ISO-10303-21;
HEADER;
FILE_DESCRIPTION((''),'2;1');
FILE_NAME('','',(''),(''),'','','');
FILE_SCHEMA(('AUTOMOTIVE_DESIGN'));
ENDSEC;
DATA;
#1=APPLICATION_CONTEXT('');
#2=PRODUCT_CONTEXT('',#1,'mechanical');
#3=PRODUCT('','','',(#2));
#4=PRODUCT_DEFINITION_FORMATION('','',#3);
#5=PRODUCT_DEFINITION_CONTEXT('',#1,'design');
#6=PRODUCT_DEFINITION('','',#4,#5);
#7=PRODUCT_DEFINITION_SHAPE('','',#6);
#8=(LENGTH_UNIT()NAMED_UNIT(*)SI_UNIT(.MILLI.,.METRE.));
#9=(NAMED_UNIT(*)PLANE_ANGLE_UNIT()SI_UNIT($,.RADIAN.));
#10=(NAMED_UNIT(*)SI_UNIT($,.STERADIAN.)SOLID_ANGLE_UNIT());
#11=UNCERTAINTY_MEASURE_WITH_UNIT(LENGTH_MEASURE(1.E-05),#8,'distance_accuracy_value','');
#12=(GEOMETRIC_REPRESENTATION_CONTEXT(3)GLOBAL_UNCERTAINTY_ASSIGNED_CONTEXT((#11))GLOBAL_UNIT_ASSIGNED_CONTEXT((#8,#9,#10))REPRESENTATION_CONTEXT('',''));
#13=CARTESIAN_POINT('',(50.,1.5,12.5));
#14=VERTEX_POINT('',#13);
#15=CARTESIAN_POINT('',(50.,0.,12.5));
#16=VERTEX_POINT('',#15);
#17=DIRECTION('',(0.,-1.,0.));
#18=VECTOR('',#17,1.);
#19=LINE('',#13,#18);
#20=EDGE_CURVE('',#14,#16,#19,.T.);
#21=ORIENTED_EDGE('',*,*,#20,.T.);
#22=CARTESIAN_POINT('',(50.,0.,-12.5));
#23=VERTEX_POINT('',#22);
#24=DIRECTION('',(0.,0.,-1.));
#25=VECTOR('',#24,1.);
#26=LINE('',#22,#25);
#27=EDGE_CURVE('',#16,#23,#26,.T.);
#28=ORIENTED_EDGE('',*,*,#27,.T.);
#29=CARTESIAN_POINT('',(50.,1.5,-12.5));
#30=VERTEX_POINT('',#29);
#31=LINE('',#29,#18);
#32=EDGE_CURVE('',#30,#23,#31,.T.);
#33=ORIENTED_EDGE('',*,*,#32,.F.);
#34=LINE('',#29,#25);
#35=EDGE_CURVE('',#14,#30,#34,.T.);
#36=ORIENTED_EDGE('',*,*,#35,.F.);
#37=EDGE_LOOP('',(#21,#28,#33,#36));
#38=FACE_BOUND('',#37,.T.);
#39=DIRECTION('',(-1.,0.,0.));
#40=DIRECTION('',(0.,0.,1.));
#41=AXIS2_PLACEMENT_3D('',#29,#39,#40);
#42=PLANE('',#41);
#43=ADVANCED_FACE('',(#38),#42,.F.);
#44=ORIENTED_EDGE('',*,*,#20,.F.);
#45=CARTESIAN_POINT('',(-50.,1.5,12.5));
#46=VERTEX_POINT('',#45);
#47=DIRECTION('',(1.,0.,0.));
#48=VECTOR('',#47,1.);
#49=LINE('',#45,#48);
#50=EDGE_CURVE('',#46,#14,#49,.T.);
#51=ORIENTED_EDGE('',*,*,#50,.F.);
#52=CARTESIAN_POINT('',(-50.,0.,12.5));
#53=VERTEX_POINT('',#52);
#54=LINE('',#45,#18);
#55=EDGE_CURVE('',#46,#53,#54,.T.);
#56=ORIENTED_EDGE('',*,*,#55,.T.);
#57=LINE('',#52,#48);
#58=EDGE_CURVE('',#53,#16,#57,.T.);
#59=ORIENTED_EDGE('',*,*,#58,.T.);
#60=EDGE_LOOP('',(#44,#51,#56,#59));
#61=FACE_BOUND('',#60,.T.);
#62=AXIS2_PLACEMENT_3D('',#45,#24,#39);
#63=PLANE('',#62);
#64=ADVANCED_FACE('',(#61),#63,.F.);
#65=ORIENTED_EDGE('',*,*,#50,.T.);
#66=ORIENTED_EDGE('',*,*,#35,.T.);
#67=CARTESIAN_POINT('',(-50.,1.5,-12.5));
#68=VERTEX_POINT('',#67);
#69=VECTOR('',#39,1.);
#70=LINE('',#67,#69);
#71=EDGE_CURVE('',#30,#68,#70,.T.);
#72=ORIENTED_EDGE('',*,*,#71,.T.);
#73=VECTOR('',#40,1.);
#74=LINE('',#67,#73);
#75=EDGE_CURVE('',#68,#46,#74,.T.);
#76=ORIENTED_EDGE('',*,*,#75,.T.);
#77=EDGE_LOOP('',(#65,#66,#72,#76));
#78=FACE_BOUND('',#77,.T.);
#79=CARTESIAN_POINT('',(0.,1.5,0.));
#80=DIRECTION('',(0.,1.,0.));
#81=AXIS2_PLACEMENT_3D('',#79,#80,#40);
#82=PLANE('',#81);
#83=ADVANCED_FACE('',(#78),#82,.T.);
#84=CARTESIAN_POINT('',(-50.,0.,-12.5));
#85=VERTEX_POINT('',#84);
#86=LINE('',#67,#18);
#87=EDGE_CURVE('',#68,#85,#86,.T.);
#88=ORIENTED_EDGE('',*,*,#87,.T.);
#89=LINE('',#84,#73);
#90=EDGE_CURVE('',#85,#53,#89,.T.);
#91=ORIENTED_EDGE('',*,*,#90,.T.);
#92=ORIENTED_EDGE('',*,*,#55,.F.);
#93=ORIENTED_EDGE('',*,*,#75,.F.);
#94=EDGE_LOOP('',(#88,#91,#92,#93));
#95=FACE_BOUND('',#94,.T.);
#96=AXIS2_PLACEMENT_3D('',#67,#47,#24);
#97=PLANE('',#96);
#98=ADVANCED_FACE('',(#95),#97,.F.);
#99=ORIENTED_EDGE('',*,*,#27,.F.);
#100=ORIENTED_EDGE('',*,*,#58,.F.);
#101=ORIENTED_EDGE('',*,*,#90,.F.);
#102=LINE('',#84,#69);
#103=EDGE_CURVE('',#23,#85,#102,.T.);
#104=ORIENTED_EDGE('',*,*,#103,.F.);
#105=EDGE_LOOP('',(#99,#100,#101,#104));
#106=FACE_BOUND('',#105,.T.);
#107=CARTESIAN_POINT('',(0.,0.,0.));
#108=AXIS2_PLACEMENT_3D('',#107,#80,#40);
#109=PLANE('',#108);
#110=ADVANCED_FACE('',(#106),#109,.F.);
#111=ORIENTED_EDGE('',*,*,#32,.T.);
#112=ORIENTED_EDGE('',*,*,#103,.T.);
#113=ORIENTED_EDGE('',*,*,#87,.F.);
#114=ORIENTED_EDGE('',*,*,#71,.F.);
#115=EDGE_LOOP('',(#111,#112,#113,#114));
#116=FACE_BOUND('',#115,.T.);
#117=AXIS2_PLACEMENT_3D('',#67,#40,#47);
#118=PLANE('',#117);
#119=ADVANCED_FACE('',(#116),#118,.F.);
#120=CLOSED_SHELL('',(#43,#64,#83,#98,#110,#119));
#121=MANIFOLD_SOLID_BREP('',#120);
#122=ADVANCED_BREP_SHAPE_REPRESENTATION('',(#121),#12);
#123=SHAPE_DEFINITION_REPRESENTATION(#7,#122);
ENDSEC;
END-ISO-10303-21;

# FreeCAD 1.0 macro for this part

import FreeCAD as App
import Part
import Sketcher
from FreeCAD import Vector

doc = App.newDocument("Part")
body = doc.addObject("PartDesign::Body", "Body")

# Sketch on XZ plane
sketch1 = body.newObject("Sketcher::SketchObject", "Sketch")
sketch1.AttachmentSupport = (doc.getObject("XZ_Plane"), [""])
sketch1.MapMode = "FlatFace"
sketch1.addGeometry([
    Part.LineSegment(Vector(-50, -12, 0), Vector(-50, 12, 0)),
    Part.LineSegment(Vector(-50, 12, 0), Vector(50, 12, 0)),
    Part.LineSegment(Vector(50, 12, 0), Vector(50, -12, 0)),
    Part.LineSegment(Vector(50, -12, 0), Vector(-50, -12, 0)),
], False)
sketch1.addConstraint([
    Sketcher.Constraint("Coincident", 0, 2, 1, 1),
    Sketcher.Constraint("Coincident", 1, 2, 2, 1),
    Sketcher.Constraint("Coincident", 2, 2, 3, 1),
    Sketcher.Constraint("Coincident", 3, 2, 0, 1),
    Sketcher.Constraint("Vertical", 0),
    Sketcher.Constraint("Horizontal", 1),
    Sketcher.Constraint("Vertical", 2),
    Sketcher.Constraint("Horizontal", 3),
    Sketcher.Constraint("Symmetric", 0, 2, 2, 2, -1, 1),
    Sketcher.Constraint("DistanceX", 1, 1, 1, 2, 100.0),
    Sketcher.Constraint("DistanceY", 0, 1, 0, 2, 25.0),
])
pad1 = body.newObject("PartDesign::Pad", "Pad")
pad1.Profile = sketch1
pad1.Length = 1.5
pad1.Reversed = True

doc.recompute()
